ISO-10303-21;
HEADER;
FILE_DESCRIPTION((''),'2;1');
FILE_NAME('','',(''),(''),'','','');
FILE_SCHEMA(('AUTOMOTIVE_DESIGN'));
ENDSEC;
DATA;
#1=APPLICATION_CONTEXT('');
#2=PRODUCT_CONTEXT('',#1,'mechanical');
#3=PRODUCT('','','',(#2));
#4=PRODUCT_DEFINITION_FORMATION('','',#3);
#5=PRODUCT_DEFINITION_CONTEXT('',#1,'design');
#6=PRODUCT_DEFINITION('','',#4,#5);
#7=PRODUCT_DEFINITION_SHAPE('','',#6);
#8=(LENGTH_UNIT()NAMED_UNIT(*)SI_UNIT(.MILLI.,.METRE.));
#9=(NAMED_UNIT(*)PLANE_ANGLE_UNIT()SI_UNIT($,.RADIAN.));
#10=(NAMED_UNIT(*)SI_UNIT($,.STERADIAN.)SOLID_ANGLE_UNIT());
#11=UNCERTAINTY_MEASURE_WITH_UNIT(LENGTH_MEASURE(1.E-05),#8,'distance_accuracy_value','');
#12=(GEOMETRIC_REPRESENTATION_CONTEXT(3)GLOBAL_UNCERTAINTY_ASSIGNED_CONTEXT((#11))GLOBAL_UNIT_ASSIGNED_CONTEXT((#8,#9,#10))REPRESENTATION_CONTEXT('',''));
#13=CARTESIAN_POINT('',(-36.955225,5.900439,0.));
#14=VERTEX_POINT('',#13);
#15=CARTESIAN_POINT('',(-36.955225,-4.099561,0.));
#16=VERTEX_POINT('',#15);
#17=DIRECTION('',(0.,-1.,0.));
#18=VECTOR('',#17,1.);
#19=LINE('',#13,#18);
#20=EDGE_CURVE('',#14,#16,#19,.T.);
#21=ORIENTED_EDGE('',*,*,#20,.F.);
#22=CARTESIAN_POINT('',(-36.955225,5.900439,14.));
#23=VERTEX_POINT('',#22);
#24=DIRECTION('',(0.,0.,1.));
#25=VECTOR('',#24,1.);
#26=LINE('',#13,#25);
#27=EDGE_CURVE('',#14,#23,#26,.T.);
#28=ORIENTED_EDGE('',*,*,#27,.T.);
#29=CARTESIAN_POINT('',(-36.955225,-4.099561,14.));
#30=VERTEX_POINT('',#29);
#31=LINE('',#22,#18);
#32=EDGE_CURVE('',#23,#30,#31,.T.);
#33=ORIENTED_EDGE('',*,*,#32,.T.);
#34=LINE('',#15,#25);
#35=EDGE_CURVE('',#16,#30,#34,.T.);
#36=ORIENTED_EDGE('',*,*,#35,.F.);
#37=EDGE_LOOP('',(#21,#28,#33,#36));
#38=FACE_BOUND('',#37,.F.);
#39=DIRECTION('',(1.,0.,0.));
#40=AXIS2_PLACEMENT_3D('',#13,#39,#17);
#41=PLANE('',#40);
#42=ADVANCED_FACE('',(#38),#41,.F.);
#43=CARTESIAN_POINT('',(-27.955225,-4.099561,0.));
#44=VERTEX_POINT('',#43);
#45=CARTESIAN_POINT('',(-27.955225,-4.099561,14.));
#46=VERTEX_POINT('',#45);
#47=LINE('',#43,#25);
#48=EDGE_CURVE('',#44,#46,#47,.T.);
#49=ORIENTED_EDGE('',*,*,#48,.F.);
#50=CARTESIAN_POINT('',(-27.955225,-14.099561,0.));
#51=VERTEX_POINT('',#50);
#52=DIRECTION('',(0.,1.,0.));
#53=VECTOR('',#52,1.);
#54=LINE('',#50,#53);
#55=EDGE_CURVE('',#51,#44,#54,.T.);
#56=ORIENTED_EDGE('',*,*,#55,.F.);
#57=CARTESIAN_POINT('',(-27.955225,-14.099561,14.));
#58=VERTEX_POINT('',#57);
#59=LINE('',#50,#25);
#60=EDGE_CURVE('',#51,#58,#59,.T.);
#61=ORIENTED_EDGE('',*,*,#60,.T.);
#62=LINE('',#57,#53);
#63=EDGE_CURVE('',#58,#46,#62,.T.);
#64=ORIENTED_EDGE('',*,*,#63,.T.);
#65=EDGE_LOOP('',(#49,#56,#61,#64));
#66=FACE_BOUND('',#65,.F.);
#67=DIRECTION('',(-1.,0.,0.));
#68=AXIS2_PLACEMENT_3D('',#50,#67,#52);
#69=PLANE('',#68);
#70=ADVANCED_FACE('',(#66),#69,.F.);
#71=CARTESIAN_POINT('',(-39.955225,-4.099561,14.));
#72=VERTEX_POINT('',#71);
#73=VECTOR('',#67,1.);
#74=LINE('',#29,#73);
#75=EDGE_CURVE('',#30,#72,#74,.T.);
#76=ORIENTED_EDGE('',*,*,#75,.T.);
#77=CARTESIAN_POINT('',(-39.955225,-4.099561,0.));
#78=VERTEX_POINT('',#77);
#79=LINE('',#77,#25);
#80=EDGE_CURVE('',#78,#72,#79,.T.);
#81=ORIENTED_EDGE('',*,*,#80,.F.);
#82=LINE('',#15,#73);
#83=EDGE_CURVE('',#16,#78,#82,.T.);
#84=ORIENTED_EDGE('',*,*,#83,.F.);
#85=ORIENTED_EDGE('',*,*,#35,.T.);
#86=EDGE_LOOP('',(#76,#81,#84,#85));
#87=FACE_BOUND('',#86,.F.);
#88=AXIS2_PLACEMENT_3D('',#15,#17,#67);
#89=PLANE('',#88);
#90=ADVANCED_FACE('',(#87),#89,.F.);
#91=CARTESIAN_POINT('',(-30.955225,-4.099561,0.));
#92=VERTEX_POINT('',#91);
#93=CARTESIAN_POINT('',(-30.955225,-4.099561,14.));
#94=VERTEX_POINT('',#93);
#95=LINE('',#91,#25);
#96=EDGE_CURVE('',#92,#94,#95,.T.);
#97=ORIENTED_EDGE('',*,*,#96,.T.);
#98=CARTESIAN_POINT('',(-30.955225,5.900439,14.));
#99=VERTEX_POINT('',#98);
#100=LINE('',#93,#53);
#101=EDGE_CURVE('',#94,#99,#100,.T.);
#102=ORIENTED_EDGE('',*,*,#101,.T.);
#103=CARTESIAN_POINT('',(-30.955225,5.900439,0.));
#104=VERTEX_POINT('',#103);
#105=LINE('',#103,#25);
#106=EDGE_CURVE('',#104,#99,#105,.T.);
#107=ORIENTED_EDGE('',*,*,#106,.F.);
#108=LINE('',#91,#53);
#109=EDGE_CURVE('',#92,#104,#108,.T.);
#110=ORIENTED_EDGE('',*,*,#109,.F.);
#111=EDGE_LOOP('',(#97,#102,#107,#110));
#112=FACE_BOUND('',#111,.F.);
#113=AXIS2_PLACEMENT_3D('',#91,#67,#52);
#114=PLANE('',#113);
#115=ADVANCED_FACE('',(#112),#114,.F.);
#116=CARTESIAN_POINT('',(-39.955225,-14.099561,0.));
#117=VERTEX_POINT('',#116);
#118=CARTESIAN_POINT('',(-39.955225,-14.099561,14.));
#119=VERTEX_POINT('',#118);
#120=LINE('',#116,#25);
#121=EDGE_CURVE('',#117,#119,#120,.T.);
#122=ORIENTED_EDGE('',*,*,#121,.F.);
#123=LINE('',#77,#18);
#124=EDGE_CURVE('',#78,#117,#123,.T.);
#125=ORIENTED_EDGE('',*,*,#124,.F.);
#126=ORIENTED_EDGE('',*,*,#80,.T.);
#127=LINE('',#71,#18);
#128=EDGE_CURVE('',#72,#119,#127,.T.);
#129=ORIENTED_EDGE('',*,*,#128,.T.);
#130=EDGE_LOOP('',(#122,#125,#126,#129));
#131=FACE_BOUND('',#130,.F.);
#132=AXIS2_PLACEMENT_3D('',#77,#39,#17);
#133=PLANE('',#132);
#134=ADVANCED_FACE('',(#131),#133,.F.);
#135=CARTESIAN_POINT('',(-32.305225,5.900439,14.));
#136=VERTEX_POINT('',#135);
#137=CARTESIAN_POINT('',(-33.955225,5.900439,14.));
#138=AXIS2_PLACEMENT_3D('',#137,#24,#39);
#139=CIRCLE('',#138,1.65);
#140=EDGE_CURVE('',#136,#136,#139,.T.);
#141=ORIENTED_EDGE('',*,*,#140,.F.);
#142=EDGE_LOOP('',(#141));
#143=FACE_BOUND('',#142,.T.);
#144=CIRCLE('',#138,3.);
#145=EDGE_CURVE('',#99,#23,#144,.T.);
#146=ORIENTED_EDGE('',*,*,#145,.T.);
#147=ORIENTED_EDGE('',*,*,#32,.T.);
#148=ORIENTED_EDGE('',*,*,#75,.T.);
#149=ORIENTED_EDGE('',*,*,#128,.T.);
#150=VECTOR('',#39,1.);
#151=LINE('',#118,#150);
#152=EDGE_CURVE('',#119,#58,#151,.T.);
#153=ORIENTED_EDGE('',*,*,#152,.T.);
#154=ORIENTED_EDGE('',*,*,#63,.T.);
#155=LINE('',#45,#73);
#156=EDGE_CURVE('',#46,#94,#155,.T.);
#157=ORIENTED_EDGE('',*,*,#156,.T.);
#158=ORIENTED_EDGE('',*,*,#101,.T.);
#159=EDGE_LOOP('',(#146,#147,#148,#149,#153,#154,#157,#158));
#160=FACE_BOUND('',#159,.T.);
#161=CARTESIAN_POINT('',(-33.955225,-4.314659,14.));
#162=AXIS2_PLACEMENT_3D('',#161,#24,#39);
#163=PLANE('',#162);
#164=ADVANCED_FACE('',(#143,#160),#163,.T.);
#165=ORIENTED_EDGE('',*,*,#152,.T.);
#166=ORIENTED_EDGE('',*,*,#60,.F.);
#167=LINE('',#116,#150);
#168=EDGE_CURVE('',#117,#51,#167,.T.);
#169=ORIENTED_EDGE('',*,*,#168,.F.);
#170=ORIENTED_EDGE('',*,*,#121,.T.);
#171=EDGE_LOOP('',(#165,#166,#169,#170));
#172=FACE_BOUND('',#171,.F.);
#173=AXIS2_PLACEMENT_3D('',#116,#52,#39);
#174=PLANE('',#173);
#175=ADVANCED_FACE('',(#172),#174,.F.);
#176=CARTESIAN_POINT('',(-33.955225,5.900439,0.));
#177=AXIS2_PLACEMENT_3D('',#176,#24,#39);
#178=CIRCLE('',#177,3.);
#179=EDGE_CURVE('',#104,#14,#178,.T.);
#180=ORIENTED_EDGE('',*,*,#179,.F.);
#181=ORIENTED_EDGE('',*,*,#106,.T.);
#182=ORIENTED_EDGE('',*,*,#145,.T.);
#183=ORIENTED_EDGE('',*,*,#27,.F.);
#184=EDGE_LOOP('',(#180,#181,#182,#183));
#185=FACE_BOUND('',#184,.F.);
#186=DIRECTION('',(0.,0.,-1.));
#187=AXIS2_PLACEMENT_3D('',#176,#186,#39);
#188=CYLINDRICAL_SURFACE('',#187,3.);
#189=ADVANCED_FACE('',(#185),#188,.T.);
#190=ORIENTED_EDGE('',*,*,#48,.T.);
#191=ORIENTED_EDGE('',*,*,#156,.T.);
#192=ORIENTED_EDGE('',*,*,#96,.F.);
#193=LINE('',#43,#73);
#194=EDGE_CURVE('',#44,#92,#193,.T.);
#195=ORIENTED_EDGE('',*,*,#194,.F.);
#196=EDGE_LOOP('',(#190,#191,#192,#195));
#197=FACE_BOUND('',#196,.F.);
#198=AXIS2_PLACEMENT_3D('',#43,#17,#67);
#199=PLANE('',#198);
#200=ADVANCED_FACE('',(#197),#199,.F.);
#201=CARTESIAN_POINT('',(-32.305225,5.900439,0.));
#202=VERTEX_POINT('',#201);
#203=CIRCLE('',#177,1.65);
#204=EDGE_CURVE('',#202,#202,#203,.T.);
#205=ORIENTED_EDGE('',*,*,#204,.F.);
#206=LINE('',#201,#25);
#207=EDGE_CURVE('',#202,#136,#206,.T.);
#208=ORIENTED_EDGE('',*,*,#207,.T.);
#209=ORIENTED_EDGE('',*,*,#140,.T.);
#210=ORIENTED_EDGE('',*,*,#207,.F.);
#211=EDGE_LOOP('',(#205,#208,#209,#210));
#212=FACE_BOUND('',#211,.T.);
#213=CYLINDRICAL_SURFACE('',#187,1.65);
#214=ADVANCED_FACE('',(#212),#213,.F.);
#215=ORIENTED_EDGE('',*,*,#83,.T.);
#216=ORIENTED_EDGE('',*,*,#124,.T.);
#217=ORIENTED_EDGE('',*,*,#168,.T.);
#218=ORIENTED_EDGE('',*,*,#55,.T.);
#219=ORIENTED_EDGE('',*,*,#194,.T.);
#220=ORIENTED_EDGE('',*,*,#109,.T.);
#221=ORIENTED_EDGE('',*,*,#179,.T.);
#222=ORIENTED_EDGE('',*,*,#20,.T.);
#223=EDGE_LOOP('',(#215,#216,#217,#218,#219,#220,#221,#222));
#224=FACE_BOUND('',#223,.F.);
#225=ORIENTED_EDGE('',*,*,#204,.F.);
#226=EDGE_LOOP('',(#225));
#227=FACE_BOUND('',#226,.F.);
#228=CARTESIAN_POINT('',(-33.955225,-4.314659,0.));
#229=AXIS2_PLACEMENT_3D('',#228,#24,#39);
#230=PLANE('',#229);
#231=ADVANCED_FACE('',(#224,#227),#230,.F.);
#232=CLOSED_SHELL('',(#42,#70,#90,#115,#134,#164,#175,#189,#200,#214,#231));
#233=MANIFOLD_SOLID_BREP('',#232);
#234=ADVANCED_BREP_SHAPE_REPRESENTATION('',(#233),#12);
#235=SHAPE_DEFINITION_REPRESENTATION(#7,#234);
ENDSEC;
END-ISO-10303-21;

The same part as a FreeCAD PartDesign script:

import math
import FreeCAD as App
import Part
import Sketcher
Q = App.Units.Quantity

doc = App.newDocument("Part")
body = doc.addObject("PartDesign::Body", "Body")

# Sketch on XY plane
sketch1 = body.newObject("Sketcher::SketchObject", "Sketch")
sketch1.AttachmentSupport = (doc.getObject("XY_Plane"), [""])
sketch1.MapMode = "FlatFace"
sketch1.addGeometry(Part.LineSegment(App.Vector(-37, -4.1, 0), App.Vector(-40, -4.1, 0)), False)
sketch1.addGeometry(Part.LineSegment(App.Vector(-40, -4.1, 0), App.Vector(-40, -14.1, 0)), False)
sketch1.addGeometry(Part.LineSegment(App.Vector(-40, -14.1, 0), App.Vector(-28, -14.1, 0)), False)
sketch1.addGeometry(Part.LineSegment(App.Vector(-28, -14.1, 0), App.Vector(-28, -4.1, 0)), False)
sketch1.addGeometry(Part.LineSegment(App.Vector(-28, -4.1, 0), App.Vector(-31, -4.1, 0)), False)
sketch1.addGeometry(Part.LineSegment(App.Vector(-31, -4.1, 0), App.Vector(-31, 5.9, 0)), False)
sketch1.addGeometry(Part.ArcOfCircle(Part.Circle(App.Vector(-34, 5.9, 0), App.Vector(0, 0, 1), 3), math.radians(0), math.radians(180)), False)
sketch1.addGeometry(Part.LineSegment(App.Vector(-37, 5.9, 0), App.Vector(-37, -4.1, 0)), False)
sketch1.addGeometry(Part.Circle(App.Vector(-34, 5.9, 0), App.Vector(0, 0, 1), 1.6), False)
sketch1.addConstraint(Sketcher.Constraint("Coincident", 0, 2, 1, 1))
sketch1.addConstraint(Sketcher.Constraint("Coincident", 1, 2, 2, 1))
sketch1.addConstraint(Sketcher.Constraint("Coincident", 2, 2, 3, 1))
sketch1.addConstraint(Sketcher.Constraint("Coincident", 3, 2, 4, 1))
sketch1.addConstraint(Sketcher.Constraint("Coincident", 4, 2, 5, 1))
sketch1.addConstraint(Sketcher.Constraint("Tangent", 5, 2, 6, 1))
sketch1.addConstraint(Sketcher.Constraint("Tangent", 6, 2, 7, 1))
sketch1.addConstraint(Sketcher.Constraint("Coincident", 7, 2, 0, 1))
sketch1.addConstraint(Sketcher.Constraint("Horizontal", 0))
sketch1.addConstraint(Sketcher.Constraint("Vertical", 1))
sketch1.addConstraint(Sketcher.Constraint("Horizontal", 2))
sketch1.addConstraint(Sketcher.Constraint("Vertical", 3))
sketch1.addConstraint(Sketcher.Constraint("Horizontal", 4))
sketch1.addConstraint(Sketcher.Constraint("Vertical", 5))
sketch1.addConstraint(Sketcher.Constraint("Vertical", 7))
sketch1.addConstraint(Sketcher.Constraint("Coincident", 8, 3, 6, 3))
sketch1.addConstraint(Sketcher.Constraint("Horizontal", 0, 2, 3, 2))
sketch1.addConstraint(Sketcher.Constraint("Equal", 0, 4))
sketch1.addConstraint(Sketcher.Constraint("Equal", 3, 5))
sketch1.addConstraint(Sketcher.Constraint("Radius", 6, Q("3 mm")))
sketch1.addConstraint(Sketcher.Constraint("Diameter", 8, Q("3.3 mm")))
sketch1.addConstraint(Sketcher.Constraint("DistanceX", 0, 2, 0, 1, Q("3 mm")))
sketch1.addConstraint(Sketcher.Constraint("DistanceY", 1, 2, 1, 1, Q("10 mm")))
sketch1.addConstraint(Sketcher.Constraint("DistanceY", -1, 1, 6, 3, Q("5.900439 mm")))
sketch1.addConstraint(Sketcher.Constraint("DistanceX", 6, 3, -1, 1, Q("33.955225 mm")))
pad1 = body.newObject("PartDesign::Pad", "Pad")
pad1.Profile = sketch1
pad1.Length = 14

doc.recompute()
